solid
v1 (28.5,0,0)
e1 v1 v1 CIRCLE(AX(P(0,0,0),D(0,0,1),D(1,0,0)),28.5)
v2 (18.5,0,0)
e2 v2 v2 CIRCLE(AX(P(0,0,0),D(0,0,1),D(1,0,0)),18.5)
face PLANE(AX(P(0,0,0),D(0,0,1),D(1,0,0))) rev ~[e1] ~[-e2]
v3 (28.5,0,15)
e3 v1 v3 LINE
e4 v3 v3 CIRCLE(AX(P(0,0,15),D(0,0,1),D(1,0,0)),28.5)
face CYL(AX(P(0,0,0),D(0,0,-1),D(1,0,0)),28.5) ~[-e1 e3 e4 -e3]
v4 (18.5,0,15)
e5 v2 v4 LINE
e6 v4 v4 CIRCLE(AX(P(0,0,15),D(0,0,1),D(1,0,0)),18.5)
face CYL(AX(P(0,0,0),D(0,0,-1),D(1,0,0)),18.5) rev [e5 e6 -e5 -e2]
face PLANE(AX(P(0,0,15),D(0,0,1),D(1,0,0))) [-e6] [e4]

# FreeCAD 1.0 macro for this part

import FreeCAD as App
import Part
import Sketcher

V = App.Vector
Q = App.Units.Quantity

doc = App.newDocument("Part")
body = doc.addObject("PartDesign::Body", "Body")

# Sketch on XY plane
sketch1 = body.newObject("Sketcher::SketchObject", "Sketch")
sketch1.AttachmentSupport = (doc.getObject("XY_Plane"), [""])
sketch1.MapMode = "FlatFace"
sketch1.addGeometry(Part.Circle(V(0, 0, 0), V(0, 0, 1), 28), False)
sketch1.addGeometry(Part.Circle(V(0, 0, 0), V(0, 0, 1), 18), False)
sketch1.addConstraint(Sketcher.Constraint("Coincident", 0, 3, -1, 1))
sketch1.addConstraint(Sketcher.Constraint("Coincident", 1, 3, -1, 1))
sketch1.addConstraint(Sketcher.Constraint("Diameter", 0, Q("57 mm")))
sketch1.addConstraint(Sketcher.Constraint("Diameter", 1, Q("37 mm")))
pad1 = body.newObject("PartDesign::Pad", "Pad")
pad1.Profile = sketch1
pad1.Length = 15

doc.recompute()
